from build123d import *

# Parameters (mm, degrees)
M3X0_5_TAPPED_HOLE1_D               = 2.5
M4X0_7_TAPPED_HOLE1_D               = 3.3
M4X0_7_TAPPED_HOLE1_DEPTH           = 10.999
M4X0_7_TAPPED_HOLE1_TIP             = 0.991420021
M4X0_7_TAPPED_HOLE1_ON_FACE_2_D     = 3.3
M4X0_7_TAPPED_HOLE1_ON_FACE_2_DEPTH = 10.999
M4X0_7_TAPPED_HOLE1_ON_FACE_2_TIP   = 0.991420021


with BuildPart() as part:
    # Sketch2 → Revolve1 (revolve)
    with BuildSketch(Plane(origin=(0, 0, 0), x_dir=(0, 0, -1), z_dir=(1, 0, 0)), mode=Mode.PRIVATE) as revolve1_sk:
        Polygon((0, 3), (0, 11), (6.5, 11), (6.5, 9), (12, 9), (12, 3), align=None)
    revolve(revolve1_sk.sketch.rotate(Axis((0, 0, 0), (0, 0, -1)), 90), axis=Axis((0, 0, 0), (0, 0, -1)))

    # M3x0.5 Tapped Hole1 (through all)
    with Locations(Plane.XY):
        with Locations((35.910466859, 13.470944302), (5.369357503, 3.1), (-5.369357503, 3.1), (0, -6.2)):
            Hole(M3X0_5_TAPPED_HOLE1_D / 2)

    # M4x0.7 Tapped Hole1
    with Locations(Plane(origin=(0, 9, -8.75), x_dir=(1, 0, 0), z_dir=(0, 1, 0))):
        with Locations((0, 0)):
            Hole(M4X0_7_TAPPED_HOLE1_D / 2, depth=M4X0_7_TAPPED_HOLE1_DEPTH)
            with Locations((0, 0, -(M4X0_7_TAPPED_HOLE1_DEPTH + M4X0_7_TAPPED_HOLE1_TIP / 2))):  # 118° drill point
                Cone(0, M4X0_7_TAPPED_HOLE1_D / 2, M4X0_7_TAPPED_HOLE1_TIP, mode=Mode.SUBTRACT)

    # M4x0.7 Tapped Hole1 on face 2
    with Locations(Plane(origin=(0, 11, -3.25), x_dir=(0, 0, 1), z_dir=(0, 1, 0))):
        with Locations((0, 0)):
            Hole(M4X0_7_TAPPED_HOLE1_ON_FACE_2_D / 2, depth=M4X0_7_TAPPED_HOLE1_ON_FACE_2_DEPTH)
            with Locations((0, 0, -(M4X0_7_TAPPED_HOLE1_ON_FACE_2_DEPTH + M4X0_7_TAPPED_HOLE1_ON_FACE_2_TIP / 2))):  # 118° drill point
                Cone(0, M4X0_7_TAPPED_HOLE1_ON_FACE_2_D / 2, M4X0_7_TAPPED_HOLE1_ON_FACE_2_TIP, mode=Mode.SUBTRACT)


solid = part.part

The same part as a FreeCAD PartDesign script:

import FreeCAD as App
import Part
import Sketcher

V = App.Vector

doc = App.newDocument("Part")
body = doc.addObject("PartDesign::Body", "Body")

# Sketch on YZ plane
sketch1 = doc.addObject("Sketcher::SketchObject", "Sketch")
body.addObject(sketch1)
sketch1.AttachmentSupport = (doc.YZ_Plane, [""])
sketch1.MapMode = "FlatFace"
sketch1.addGeometry(Part.LineSegment(V(11, 0, 0), V(3, 0, 0)), False)
sketch1.addGeometry(Part.LineSegment(V(3, 0, 0), V(3, -12, 0)), False)
sketch1.addGeometry(Part.LineSegment(V(3, -12, 0), V(9, -12, 0)), False)
sketch1.addGeometry(Part.LineSegment(V(9, -12, 0), V(9, -6.5, 0)), False)
sketch1.addGeometry(Part.LineSegment(V(9, -6.5, 0), V(11, -6.5, 0)), False)
sketch1.addGeometry(Part.LineSegment(V(11, -6.5, 0), V(11, 0, 0)), False)
sketch1.addConstraint(Sketcher.Constraint("Coincident", 0, 2, 1, 1))
sketch1.addConstraint(Sketcher.Constraint("Coincident", 1, 2, 2, 1))
sketch1.addConstraint(Sketcher.Constraint("Coincident", 2, 2, 3, 1))
sketch1.addConstraint(Sketcher.Constraint("Coincident", 3, 2, 4, 1))
sketch1.addConstraint(Sketcher.Constraint("Coincident", 4, 2, 5, 1))
sketch1.addConstraint(Sketcher.Constraint("Coincident", 5, 2, 0, 1))
sketch1.addConstraint(Sketcher.Constraint("Horizontal", 0))
sketch1.addConstraint(Sketcher.Constraint("Vertical", 1))
sketch1.addConstraint(Sketcher.Constraint("Horizontal", 2))
sketch1.addConstraint(Sketcher.Constraint("Vertical", 3))
sketch1.addConstraint(Sketcher.Constraint("Horizontal", 4))
sketch1.addConstraint(Sketcher.Constraint("Vertical", 5))
sketch1.addConstraint(Sketcher.Constraint("PointOnObject", 0, 2, -1))
sketch1.addConstraint(Sketcher.Constraint("DistanceX", 0, 2, 0, 1, 8.0))
sketch1.addConstraint(Sketcher.Constraint("DistanceX", 2, 1, 2, 2, 6.0))
sketch1.addConstraint(Sketcher.Constraint("DistanceY", 1, 2, 1, 1, 12.0))
sketch1.addConstraint(Sketcher.Constraint("DistanceY", 3, 1, 3, 2, 5.5))
sketch1.addConstraint(Sketcher.Constraint("DistanceX", -1, 1, 0, 2, 3.0))
revolution = doc.addObject("PartDesign::Revolution", "Revolution")
body.addObject(revolution)
revolution.Profile = sketch1
revolution.ReferenceAxis = (sketch1, ["V_Axis"])
revolution.Angle = 360

# Sketch on XY plane
sketch2 = doc.addObject("Sketcher::SketchObject", "Sketch001")
body.addObject(sketch2)
sketch2.AttachmentSupport = (doc.XY_Plane, [""])
sketch2.MapMode = "FlatFace"
sketch2.addGeometry(Part.Circle(V(35.910467, 13.470944, 0), V(0, 0, 1), 1.25), False)
sketch2.addGeometry(Part.Circle(V(5.369358, 3.1, 0), V(0, 0, 1), 1.25), False)
sketch2.addGeometry(Part.Circle(V(-5.369358, 3.1, 0), V(0, 0, 1), 1.25), False)
sketch2.addGeometry(Part.Circle(V(0, -6.2, 0), V(0, 0, 1), 1.25), False)
sketch2.addConstraint(Sketcher.Constraint("Equal", 0, 1))
sketch2.addConstraint(Sketcher.Constraint("Equal", 1, 2))
sketch2.addConstraint(Sketcher.Constraint("Equal", 2, 3))
sketch2.addConstraint(Sketcher.Constraint("Symmetric", 1, 3, 2, 3, -2))
sketch2.addConstraint(Sketcher.Constraint("PointOnObject", 3, 3, -2))
sketch2.addConstraint(Sketcher.Constraint("Diameter", 0, 2.5))
sketch2.addConstraint(Sketcher.Constraint("DistanceY", -1, 1, 1, 3, 3.1))
sketch2.addConstraint(Sketcher.Constraint("DistanceY", 3, 3, -1, 1, 6.2))
sketch2.addConstraint(Sketcher.Constraint("DistanceX", 1, 3, 0, 3, 30.541109))
sketch2.addConstraint(Sketcher.Constraint("DistanceX", -1, 1, 0, 3, 35.910467))
sketch2.addConstraint(Sketcher.Constraint("DistanceY", -1, 1, 0, 3, 13.470944))
doc.recompute()
hole = doc.addObject("PartDesign::Hole", "Hole")
body.addObject(hole)
hole.Profile = sketch2
hole.ThreadType = "None"
hole.Diameter = 2.5
hole.DepthType = "ThroughAll"

# Sketch on XZ plane
sketch3 = doc.addObject("Sketcher::SketchObject", "Sketch002")
body.addObject(sketch3)
sketch3.AttachmentSupport = (doc.XZ_Plane, [""])
sketch3.MapMode = "FlatFace"
sketch3.AttachmentOffset = App.Placement(V(0, 0, -9), App.Rotation())
sketch3.addGeometry(Part.Circle(V(0, -8.75, 0), V(0, 0, 1), 1.65), False)
sketch3.addConstraint(Sketcher.Constraint("PointOnObject", 0, 3, -2))
sketch3.addConstraint(Sketcher.Constraint("Diameter", 0, 3.3))
sketch3.addConstraint(Sketcher.Constraint("DistanceY", 0, 3, -1, 1, 8.75))
doc.recompute()
hole2 = doc.addObject("PartDesign::Hole", "Hole001")
body.addObject(hole2)
hole2.Profile = sketch3
hole2.ThreadType = "None"
hole2.Diameter = 3.3
hole2.DepthType = "Dimension"
hole2.Depth = 10.999
hole2.DrillPoint = "Angled"
hole2.DrillPointAngle = 118
hole2.Reversed = True

# Sketch on XZ plane
sketch4 = doc.addObject("Sketcher::SketchObject", "Sketch003")
body.addObject(sketch4)
sketch4.AttachmentSupport = (doc.XZ_Plane, [""])
sketch4.MapMode = "FlatFace"
sketch4.AttachmentOffset = App.Placement(V(0, 0, -11), App.Rotation())
sketch4.addGeometry(Part.Circle(V(0, -3.25, 0), V(0, 0, 1), 1.65), False)
sketch4.addConstraint(Sketcher.Constraint("PointOnObject", 0, 3, -2))
sketch4.addConstraint(Sketcher.Constraint("Diameter", 0, 3.3))
sketch4.addConstraint(Sketcher.Constraint("DistanceY", 0, 3, -1, 1, 3.25))
doc.recompute()
hole3 = doc.addObject("PartDesign::Hole", "Hole002")
body.addObject(hole3)
hole3.Profile = sketch4
hole3.ThreadType = "None"
hole3.Diameter = 3.3
hole3.DepthType = "Dimension"
hole3.Depth = 10.999
hole3.DrillPoint = "Angled"
hole3.DrillPointAngle = 118
hole3.Reversed = True

doc.recompute()
